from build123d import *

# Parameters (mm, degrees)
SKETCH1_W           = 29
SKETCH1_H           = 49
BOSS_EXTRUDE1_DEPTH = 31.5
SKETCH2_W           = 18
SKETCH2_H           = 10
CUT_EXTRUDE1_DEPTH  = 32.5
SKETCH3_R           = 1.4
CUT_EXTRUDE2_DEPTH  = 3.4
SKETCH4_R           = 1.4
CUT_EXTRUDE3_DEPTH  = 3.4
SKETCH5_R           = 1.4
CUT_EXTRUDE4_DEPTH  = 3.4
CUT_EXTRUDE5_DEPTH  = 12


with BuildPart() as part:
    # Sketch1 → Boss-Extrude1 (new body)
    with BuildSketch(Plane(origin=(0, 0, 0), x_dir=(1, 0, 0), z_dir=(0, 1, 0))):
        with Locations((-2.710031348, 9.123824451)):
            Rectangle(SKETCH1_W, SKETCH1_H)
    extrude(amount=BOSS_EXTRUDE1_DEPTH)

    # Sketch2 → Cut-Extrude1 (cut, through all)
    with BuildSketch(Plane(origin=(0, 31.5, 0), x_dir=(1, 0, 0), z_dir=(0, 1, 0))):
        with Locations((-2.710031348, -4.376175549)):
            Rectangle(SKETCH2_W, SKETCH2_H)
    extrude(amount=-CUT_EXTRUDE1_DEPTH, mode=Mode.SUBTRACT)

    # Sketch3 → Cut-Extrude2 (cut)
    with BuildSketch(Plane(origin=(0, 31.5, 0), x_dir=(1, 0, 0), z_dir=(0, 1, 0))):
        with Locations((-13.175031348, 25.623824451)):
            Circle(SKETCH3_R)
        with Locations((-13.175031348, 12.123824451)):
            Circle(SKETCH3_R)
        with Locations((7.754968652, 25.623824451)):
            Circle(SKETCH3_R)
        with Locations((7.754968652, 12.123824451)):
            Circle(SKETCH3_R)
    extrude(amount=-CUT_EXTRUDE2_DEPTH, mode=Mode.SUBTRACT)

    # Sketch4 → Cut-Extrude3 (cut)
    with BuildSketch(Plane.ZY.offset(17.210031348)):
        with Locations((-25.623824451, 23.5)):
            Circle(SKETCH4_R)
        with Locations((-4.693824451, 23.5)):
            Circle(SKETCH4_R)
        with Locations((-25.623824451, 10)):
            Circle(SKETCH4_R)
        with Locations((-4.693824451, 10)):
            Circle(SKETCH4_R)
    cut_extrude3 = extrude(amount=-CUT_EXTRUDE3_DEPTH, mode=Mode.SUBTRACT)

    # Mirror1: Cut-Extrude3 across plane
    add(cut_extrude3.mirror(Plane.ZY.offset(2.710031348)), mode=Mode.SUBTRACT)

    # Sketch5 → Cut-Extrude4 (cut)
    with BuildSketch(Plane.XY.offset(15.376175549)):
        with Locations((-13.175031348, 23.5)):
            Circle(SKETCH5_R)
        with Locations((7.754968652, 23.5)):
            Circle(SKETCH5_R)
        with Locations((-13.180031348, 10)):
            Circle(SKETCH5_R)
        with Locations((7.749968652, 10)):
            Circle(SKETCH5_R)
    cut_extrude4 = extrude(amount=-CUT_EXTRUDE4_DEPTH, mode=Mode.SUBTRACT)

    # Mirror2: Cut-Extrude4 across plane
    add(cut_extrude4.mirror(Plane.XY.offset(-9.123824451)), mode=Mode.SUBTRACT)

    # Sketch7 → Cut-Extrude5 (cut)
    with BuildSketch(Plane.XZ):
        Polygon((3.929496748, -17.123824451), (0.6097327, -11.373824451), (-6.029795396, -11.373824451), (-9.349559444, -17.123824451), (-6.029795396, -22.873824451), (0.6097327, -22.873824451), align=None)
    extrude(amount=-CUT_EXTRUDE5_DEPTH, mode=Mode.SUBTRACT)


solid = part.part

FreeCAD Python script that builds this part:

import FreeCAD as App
import Part
import Sketcher

V = App.Vector
Q = App.Units.Quantity


def add_polygon(sketch, points):
    """Adds a closed chain of lines whose ends are joined by coincident constraints."""
    first, n = sketch.GeometryCount, len(points)
    for a, b in zip(points, points[1:] + points[:1]):
        sketch.addGeometry(Part.LineSegment(App.Vector(*a, 0), App.Vector(*b, 0)), False)
    for i in range(n):
        sketch.addConstraint(Sketcher.Constraint("Coincident", first + i, 2, first + (i + 1) % n, 1))

doc = App.newDocument("Part")
body = doc.addObject("PartDesign::Body", "Body")

# Sketch on XZ plane
sketch1 = doc.addObject("Sketcher::SketchObject", "Sketch")
body.addObject(sketch1)
sketch1.AttachmentSupport = (doc.XZ_Plane, [""])
sketch1.MapMode = "FlatFace"
add_polygon(sketch1, [(-17, -34), (-17, 15), (12, 15), (12, -34)])  # lines 0-3
sketch1.addConstraint(Sketcher.Constraint("Vertical", 0))
sketch1.addConstraint(Sketcher.Constraint("Horizontal", 1))
sketch1.addConstraint(Sketcher.Constraint("Vertical", 2))
sketch1.addConstraint(Sketcher.Constraint("Horizontal", 3))
sketch1.addConstraint(Sketcher.Constraint("DistanceX", 1, 1, 1, 2, 29.0))
sketch1.addConstraint(Sketcher.Constraint("DistanceY", 0, 1, 0, 2, 49.0))
sketch1.addConstraint(Sketcher.Constraint("DistanceX", 0, 2, -1, 1, 17.210031))
sketch1.addConstraint(Sketcher.Constraint("DistanceY", -1, 1, 0, 2, 15.376176))
pad1 = doc.addObject("PartDesign::Pad", "Pad")
body.addObject(pad1)
pad1.Profile = sketch1
pad1.Length = 31.5
pad1.Reversed = True

# Sketch on XZ plane
sketch2 = doc.addObject("Sketcher::SketchObject", "Sketch001")
body.addObject(sketch2)
sketch2.AttachmentSupport = (doc.XZ_Plane, [""])
sketch2.MapMode = "FlatFace"
sketch2.AttachmentOffset = App.Placement(V(0, 0, -31.5), App.Rotation())
add_polygon(sketch2, [(-12, -1), (-12, 9), (6, 9), (6, -1)])  # lines 0-3
sketch2.addConstraint(Sketcher.Constraint("Vertical", 0))
sketch2.addConstraint(Sketcher.Constraint("Horizontal", 1))
sketch2.addConstraint(Sketcher.Constraint("Vertical", 2))
sketch2.addConstraint(Sketcher.Constraint("Horizontal", 3))
sketch2.addConstraint(Sketcher.Constraint("DistanceX", 1, 1, 1, 2, 18.0))
sketch2.addConstraint(Sketcher.Constraint("DistanceY", 0, 1, 0, 2, 10.0))
sketch2.addConstraint(Sketcher.Constraint("DistanceX", 0, 2, -1, 1, 11.710031))
sketch2.addConstraint(Sketcher.Constraint("DistanceY", -1, 1, 0, 2, 9.376176))
pocket1 = doc.addObject("PartDesign::Pocket", "Pocket")
body.addObject(pocket1)
pocket1.Profile = sketch2
pocket1.Type = "ThroughAll"
pocket1.Reversed = True

# Sketch on XZ plane
sketch3 = doc.addObject("Sketcher::SketchObject", "Sketch002")
body.addObject(sketch3)
sketch3.AttachmentSupport = (doc.XZ_Plane, [""])
sketch3.MapMode = "FlatFace"
sketch3.AttachmentOffset = App.Placement(V(0, 0, -31.5), App.Rotation())
sketch3.addGeometry(Part.Circle(V(-13.2, -25.6, 0), V(0, 0, 1), 1.4), False)
sketch3.addGeometry(Part.Circle(V(-13.2, -12.1, 0), V(0, 0, 1), 1.4), False)
sketch3.addGeometry(Part.Circle(V(7.8, -25.6, 0), V(0, 0, 1), 1.4), False)
sketch3.addGeometry(Part.Circle(V(7.8, -12.1, 0), V(0, 0, 1), 1.4), False)
sketch3.addConstraint(Sketcher.Constraint("Equal", 0, 1))
sketch3.addConstraint(Sketcher.Constraint("Equal", 1, 2))
sketch3.addConstraint(Sketcher.Constraint("Equal", 2, 3))
sketch3.addConstraint(Sketcher.Constraint("Horizontal", 0, 3, 2, 3))
sketch3.addConstraint(Sketcher.Constraint("Horizontal", 1, 3, 3, 3))
sketch3.addConstraint(Sketcher.Constraint("Vertical", 0, 3, 1, 3))
sketch3.addConstraint(Sketcher.Constraint("Vertical", 2, 3, 3, 3))
sketch3.addConstraint(Sketcher.Constraint("Diameter", 0, 2.8))
sketch3.addConstraint(Sketcher.Constraint("DistanceY", 0, 3, 1, 3, 13.5))
sketch3.addConstraint(Sketcher.Constraint("DistanceX", 0, 3, 2, 3, 20.93))
sketch3.addConstraint(Sketcher.Constraint("DistanceX", 0, 3, -1, 1, 13.175031))
sketch3.addConstraint(Sketcher.Constraint("DistanceY", 0, 3, -1, 1, 25.623824))
pocket2 = doc.addObject("PartDesign::Pocket", "Pocket001")
body.addObject(pocket2)
pocket2.Profile = sketch3
pocket2.Length = 3.4
pocket2.Reversed = True

# Sketch on YZ plane
sketch4 = doc.addObject("Sketcher::SketchObject", "Sketch003")
body.addObject(sketch4)
sketch4.AttachmentSupport = (doc.YZ_Plane, [""])
sketch4.MapMode = "FlatFace"
sketch4.AttachmentOffset = App.Placement(V(0, 0, -17.210031), App.Rotation())
sketch4.addGeometry(Part.Circle(V(23.5, -25.6, 0), V(0, 0, 1), 1.4), False)
sketch4.addGeometry(Part.Circle(V(23.5, -4.7, 0), V(0, 0, 1), 1.4), False)
sketch4.addGeometry(Part.Circle(V(10, -25.6, 0), V(0, 0, 1), 1.4), False)
sketch4.addGeometry(Part.Circle(V(10, -4.7, 0), V(0, 0, 1), 1.4), False)
sketch4.addConstraint(Sketcher.Constraint("Equal", 0, 1))
sketch4.addConstraint(Sketcher.Constraint("Equal", 1, 2))
sketch4.addConstraint(Sketcher.Constraint("Equal", 2, 3))
sketch4.addConstraint(Sketcher.Constraint("Horizontal", 0, 3, 2, 3))
sketch4.addConstraint(Sketcher.Constraint("Horizontal", 1, 3, 3, 3))
sketch4.addConstraint(Sketcher.Constraint("Vertical", 0, 3, 1, 3))
sketch4.addConstraint(Sketcher.Constraint("Vertical", 2, 3, 3, 3))
sketch4.addConstraint(Sketcher.Constraint("Diameter", 0, 2.8))
sketch4.addConstraint(Sketcher.Constraint("DistanceX", -1, 1, 2, 3, 10.0))
sketch4.addConstraint(Sketcher.Constraint("DistanceX", -1, 1, 0, 3, 23.5))
sketch4.addConstraint(Sketcher.Constraint("DistanceY", 0, 3, 1, 3, 20.93))
sketch4.addConstraint(Sketcher.Constraint("DistanceY", 0, 3, -1, 1, 25.623824))
pocket3 = doc.addObject("PartDesign::Pocket", "Pocket002")
body.addObject(pocket3)
pocket3.Profile = sketch4
pocket3.Length = 3.4
pocket3.Reversed = True
doc.recompute()

datumplane = doc.addObject("PartDesign::Plane", "DatumPlane")
body.addObject(datumplane)
datumplane.AttachmentSupport = (doc.YZ_Plane, [""])
datumplane.MapMode = "FlatFace"
datumplane.AttachmentOffset = App.Placement(V(0, 0, -2.710031), App.Rotation())
mirrored = doc.addObject("PartDesign::Mirrored", "Mirrored")
body.addObject(mirrored)
mirrored.Originals = [pocket3]
mirrored.MirrorPlane = (datumplane, [""])
body.Tip = mirrored

# Sketch on XY plane
sketch5 = doc.addObject("Sketcher::SketchObject", "Sketch004")
body.addObject(sketch5)
sketch5.AttachmentSupport = (doc.XY_Plane, [""])
sketch5.MapMode = "FlatFace"
sketch5.AttachmentOffset = App.Placement(V(0, 0, 15.376176), App.Rotation())
sketch5.addGeometry(Part.Circle(V(-13.2, 23.5, 0), V(0, 0, 1), 1.4), False)
sketch5.addGeometry(Part.Circle(V(7.8, 23.5, 0), V(0, 0, 1), 1.4), False)
sketch5.addGeometry(Part.Circle(V(-13.2, 10, 0), V(0, 0, 1), 1.4), False)
sketch5.addGeometry(Part.Circle(V(7.7, 10, 0), V(0, 0, 1), 1.4), False)
sketch5.addConstraint(Sketcher.Constraint("Equal", 0, 1))
sketch5.addConstraint(Sketcher.Constraint("Equal", 1, 2))
sketch5.addConstraint(Sketcher.Constraint("Equal", 2, 3))
sketch5.addConstraint(Sketcher.Constraint("Horizontal", 0, 3, 1, 3))
sketch5.addConstraint(Sketcher.Constraint("Horizontal", 2, 3, 3, 3))
sketch5.addConstraint(Sketcher.Constraint("Diameter", 0, 2.8))
sketch5.addConstraint(Sketcher.Constraint("DistanceY", -1, 1, 2, 3, 10.0))
sketch5.addConstraint(Sketcher.Constraint("DistanceY", -1, 1, 0, 3, 23.5))
sketch5.addConstraint(Sketcher.Constraint("DistanceX", 0, 3, 1, 3, 20.93))
sketch5.addConstraint(Sketcher.Constraint("DistanceX", 2, 3, 3, 3, 20.93))
sketch5.addConstraint(Sketcher.Constraint("DistanceX", 2, 3, 0, 3, 0.005))
sketch5.addConstraint(Sketcher.Constraint("DistanceX", 0, 3, -1, 1, 13.175031))
pocket4 = doc.addObject("PartDesign::Pocket", "Pocket003")
body.addObject(pocket4)
pocket4.Profile = sketch5
pocket4.Length = 3.4
doc.recompute()

datumplane2 = doc.addObject("PartDesign::Plane", "DatumPlane001")
body.addObject(datumplane2)
datumplane2.AttachmentSupport = (doc.XY_Plane, [""])
datumplane2.MapMode = "FlatFace"
datumplane2.AttachmentOffset = App.Placement(V(0, 0, -9.123824), App.Rotation())
mirrored2 = doc.addObject("PartDesign::Mirrored", "Mirrored001")
body.addObject(mirrored2)
mirrored2.Originals = [pocket4]
mirrored2.MirrorPlane = (datumplane2, [""])
body.Tip = mirrored2

# Sketch on XZ plane
sketch6 = doc.addObject("Sketcher::SketchObject", "Sketch005")
body.addObject(sketch6)
sketch6.AttachmentSupport = (doc.XZ_Plane, [""])
sketch6.MapMode = "FlatFace"
add_polygon(sketch6, [(4, -17), (1, -11), (-6, -11), (-9, -17), (-6, -23), (1, -23)])  # lines 0-5
sketch6.addConstraint(Sketcher.Constraint("Horizontal", 1))
sketch6.addConstraint(Sketcher.Constraint("Horizontal", 4))
sketch6.addConstraint(Sketcher.Constraint("Parallel", 0, 3))
sketch6.addConstraint(Sketcher.Constraint("Parallel", 2, 5))
sketch6.addConstraint(Sketcher.Constraint("Horizontal", 2, 2, 5, 2))
sketch6.addConstraint(Sketcher.Constraint("Vertical", 1, 2, 3, 2))
sketch6.addConstraint(Sketcher.Constraint("Vertical", 0, 2, 4, 2))
sketch6.addConstraint(Sketcher.Constraint("Angle", 0, Q("120 deg")))
sketch6.addConstraint(Sketcher.Constraint("DistanceY", 3, 2, 1, 2, 11.5))
sketch6.addConstraint(Sketcher.Constraint("DistanceX", 1, 2, 1, 1, 6.639528))
sketch6.addConstraint(Sketcher.Constraint("DistanceX", 2, 2, -1, 1, 9.349559))
sketch6.addConstraint(Sketcher.Constraint("DistanceY", 0, 2, -1, 1, 11.373824))
pocket5 = doc.addObject("PartDesign::Pocket", "Pocket004")
body.addObject(pocket5)
pocket5.Profile = sketch6
pocket5.Length = 12

doc.recompute()
